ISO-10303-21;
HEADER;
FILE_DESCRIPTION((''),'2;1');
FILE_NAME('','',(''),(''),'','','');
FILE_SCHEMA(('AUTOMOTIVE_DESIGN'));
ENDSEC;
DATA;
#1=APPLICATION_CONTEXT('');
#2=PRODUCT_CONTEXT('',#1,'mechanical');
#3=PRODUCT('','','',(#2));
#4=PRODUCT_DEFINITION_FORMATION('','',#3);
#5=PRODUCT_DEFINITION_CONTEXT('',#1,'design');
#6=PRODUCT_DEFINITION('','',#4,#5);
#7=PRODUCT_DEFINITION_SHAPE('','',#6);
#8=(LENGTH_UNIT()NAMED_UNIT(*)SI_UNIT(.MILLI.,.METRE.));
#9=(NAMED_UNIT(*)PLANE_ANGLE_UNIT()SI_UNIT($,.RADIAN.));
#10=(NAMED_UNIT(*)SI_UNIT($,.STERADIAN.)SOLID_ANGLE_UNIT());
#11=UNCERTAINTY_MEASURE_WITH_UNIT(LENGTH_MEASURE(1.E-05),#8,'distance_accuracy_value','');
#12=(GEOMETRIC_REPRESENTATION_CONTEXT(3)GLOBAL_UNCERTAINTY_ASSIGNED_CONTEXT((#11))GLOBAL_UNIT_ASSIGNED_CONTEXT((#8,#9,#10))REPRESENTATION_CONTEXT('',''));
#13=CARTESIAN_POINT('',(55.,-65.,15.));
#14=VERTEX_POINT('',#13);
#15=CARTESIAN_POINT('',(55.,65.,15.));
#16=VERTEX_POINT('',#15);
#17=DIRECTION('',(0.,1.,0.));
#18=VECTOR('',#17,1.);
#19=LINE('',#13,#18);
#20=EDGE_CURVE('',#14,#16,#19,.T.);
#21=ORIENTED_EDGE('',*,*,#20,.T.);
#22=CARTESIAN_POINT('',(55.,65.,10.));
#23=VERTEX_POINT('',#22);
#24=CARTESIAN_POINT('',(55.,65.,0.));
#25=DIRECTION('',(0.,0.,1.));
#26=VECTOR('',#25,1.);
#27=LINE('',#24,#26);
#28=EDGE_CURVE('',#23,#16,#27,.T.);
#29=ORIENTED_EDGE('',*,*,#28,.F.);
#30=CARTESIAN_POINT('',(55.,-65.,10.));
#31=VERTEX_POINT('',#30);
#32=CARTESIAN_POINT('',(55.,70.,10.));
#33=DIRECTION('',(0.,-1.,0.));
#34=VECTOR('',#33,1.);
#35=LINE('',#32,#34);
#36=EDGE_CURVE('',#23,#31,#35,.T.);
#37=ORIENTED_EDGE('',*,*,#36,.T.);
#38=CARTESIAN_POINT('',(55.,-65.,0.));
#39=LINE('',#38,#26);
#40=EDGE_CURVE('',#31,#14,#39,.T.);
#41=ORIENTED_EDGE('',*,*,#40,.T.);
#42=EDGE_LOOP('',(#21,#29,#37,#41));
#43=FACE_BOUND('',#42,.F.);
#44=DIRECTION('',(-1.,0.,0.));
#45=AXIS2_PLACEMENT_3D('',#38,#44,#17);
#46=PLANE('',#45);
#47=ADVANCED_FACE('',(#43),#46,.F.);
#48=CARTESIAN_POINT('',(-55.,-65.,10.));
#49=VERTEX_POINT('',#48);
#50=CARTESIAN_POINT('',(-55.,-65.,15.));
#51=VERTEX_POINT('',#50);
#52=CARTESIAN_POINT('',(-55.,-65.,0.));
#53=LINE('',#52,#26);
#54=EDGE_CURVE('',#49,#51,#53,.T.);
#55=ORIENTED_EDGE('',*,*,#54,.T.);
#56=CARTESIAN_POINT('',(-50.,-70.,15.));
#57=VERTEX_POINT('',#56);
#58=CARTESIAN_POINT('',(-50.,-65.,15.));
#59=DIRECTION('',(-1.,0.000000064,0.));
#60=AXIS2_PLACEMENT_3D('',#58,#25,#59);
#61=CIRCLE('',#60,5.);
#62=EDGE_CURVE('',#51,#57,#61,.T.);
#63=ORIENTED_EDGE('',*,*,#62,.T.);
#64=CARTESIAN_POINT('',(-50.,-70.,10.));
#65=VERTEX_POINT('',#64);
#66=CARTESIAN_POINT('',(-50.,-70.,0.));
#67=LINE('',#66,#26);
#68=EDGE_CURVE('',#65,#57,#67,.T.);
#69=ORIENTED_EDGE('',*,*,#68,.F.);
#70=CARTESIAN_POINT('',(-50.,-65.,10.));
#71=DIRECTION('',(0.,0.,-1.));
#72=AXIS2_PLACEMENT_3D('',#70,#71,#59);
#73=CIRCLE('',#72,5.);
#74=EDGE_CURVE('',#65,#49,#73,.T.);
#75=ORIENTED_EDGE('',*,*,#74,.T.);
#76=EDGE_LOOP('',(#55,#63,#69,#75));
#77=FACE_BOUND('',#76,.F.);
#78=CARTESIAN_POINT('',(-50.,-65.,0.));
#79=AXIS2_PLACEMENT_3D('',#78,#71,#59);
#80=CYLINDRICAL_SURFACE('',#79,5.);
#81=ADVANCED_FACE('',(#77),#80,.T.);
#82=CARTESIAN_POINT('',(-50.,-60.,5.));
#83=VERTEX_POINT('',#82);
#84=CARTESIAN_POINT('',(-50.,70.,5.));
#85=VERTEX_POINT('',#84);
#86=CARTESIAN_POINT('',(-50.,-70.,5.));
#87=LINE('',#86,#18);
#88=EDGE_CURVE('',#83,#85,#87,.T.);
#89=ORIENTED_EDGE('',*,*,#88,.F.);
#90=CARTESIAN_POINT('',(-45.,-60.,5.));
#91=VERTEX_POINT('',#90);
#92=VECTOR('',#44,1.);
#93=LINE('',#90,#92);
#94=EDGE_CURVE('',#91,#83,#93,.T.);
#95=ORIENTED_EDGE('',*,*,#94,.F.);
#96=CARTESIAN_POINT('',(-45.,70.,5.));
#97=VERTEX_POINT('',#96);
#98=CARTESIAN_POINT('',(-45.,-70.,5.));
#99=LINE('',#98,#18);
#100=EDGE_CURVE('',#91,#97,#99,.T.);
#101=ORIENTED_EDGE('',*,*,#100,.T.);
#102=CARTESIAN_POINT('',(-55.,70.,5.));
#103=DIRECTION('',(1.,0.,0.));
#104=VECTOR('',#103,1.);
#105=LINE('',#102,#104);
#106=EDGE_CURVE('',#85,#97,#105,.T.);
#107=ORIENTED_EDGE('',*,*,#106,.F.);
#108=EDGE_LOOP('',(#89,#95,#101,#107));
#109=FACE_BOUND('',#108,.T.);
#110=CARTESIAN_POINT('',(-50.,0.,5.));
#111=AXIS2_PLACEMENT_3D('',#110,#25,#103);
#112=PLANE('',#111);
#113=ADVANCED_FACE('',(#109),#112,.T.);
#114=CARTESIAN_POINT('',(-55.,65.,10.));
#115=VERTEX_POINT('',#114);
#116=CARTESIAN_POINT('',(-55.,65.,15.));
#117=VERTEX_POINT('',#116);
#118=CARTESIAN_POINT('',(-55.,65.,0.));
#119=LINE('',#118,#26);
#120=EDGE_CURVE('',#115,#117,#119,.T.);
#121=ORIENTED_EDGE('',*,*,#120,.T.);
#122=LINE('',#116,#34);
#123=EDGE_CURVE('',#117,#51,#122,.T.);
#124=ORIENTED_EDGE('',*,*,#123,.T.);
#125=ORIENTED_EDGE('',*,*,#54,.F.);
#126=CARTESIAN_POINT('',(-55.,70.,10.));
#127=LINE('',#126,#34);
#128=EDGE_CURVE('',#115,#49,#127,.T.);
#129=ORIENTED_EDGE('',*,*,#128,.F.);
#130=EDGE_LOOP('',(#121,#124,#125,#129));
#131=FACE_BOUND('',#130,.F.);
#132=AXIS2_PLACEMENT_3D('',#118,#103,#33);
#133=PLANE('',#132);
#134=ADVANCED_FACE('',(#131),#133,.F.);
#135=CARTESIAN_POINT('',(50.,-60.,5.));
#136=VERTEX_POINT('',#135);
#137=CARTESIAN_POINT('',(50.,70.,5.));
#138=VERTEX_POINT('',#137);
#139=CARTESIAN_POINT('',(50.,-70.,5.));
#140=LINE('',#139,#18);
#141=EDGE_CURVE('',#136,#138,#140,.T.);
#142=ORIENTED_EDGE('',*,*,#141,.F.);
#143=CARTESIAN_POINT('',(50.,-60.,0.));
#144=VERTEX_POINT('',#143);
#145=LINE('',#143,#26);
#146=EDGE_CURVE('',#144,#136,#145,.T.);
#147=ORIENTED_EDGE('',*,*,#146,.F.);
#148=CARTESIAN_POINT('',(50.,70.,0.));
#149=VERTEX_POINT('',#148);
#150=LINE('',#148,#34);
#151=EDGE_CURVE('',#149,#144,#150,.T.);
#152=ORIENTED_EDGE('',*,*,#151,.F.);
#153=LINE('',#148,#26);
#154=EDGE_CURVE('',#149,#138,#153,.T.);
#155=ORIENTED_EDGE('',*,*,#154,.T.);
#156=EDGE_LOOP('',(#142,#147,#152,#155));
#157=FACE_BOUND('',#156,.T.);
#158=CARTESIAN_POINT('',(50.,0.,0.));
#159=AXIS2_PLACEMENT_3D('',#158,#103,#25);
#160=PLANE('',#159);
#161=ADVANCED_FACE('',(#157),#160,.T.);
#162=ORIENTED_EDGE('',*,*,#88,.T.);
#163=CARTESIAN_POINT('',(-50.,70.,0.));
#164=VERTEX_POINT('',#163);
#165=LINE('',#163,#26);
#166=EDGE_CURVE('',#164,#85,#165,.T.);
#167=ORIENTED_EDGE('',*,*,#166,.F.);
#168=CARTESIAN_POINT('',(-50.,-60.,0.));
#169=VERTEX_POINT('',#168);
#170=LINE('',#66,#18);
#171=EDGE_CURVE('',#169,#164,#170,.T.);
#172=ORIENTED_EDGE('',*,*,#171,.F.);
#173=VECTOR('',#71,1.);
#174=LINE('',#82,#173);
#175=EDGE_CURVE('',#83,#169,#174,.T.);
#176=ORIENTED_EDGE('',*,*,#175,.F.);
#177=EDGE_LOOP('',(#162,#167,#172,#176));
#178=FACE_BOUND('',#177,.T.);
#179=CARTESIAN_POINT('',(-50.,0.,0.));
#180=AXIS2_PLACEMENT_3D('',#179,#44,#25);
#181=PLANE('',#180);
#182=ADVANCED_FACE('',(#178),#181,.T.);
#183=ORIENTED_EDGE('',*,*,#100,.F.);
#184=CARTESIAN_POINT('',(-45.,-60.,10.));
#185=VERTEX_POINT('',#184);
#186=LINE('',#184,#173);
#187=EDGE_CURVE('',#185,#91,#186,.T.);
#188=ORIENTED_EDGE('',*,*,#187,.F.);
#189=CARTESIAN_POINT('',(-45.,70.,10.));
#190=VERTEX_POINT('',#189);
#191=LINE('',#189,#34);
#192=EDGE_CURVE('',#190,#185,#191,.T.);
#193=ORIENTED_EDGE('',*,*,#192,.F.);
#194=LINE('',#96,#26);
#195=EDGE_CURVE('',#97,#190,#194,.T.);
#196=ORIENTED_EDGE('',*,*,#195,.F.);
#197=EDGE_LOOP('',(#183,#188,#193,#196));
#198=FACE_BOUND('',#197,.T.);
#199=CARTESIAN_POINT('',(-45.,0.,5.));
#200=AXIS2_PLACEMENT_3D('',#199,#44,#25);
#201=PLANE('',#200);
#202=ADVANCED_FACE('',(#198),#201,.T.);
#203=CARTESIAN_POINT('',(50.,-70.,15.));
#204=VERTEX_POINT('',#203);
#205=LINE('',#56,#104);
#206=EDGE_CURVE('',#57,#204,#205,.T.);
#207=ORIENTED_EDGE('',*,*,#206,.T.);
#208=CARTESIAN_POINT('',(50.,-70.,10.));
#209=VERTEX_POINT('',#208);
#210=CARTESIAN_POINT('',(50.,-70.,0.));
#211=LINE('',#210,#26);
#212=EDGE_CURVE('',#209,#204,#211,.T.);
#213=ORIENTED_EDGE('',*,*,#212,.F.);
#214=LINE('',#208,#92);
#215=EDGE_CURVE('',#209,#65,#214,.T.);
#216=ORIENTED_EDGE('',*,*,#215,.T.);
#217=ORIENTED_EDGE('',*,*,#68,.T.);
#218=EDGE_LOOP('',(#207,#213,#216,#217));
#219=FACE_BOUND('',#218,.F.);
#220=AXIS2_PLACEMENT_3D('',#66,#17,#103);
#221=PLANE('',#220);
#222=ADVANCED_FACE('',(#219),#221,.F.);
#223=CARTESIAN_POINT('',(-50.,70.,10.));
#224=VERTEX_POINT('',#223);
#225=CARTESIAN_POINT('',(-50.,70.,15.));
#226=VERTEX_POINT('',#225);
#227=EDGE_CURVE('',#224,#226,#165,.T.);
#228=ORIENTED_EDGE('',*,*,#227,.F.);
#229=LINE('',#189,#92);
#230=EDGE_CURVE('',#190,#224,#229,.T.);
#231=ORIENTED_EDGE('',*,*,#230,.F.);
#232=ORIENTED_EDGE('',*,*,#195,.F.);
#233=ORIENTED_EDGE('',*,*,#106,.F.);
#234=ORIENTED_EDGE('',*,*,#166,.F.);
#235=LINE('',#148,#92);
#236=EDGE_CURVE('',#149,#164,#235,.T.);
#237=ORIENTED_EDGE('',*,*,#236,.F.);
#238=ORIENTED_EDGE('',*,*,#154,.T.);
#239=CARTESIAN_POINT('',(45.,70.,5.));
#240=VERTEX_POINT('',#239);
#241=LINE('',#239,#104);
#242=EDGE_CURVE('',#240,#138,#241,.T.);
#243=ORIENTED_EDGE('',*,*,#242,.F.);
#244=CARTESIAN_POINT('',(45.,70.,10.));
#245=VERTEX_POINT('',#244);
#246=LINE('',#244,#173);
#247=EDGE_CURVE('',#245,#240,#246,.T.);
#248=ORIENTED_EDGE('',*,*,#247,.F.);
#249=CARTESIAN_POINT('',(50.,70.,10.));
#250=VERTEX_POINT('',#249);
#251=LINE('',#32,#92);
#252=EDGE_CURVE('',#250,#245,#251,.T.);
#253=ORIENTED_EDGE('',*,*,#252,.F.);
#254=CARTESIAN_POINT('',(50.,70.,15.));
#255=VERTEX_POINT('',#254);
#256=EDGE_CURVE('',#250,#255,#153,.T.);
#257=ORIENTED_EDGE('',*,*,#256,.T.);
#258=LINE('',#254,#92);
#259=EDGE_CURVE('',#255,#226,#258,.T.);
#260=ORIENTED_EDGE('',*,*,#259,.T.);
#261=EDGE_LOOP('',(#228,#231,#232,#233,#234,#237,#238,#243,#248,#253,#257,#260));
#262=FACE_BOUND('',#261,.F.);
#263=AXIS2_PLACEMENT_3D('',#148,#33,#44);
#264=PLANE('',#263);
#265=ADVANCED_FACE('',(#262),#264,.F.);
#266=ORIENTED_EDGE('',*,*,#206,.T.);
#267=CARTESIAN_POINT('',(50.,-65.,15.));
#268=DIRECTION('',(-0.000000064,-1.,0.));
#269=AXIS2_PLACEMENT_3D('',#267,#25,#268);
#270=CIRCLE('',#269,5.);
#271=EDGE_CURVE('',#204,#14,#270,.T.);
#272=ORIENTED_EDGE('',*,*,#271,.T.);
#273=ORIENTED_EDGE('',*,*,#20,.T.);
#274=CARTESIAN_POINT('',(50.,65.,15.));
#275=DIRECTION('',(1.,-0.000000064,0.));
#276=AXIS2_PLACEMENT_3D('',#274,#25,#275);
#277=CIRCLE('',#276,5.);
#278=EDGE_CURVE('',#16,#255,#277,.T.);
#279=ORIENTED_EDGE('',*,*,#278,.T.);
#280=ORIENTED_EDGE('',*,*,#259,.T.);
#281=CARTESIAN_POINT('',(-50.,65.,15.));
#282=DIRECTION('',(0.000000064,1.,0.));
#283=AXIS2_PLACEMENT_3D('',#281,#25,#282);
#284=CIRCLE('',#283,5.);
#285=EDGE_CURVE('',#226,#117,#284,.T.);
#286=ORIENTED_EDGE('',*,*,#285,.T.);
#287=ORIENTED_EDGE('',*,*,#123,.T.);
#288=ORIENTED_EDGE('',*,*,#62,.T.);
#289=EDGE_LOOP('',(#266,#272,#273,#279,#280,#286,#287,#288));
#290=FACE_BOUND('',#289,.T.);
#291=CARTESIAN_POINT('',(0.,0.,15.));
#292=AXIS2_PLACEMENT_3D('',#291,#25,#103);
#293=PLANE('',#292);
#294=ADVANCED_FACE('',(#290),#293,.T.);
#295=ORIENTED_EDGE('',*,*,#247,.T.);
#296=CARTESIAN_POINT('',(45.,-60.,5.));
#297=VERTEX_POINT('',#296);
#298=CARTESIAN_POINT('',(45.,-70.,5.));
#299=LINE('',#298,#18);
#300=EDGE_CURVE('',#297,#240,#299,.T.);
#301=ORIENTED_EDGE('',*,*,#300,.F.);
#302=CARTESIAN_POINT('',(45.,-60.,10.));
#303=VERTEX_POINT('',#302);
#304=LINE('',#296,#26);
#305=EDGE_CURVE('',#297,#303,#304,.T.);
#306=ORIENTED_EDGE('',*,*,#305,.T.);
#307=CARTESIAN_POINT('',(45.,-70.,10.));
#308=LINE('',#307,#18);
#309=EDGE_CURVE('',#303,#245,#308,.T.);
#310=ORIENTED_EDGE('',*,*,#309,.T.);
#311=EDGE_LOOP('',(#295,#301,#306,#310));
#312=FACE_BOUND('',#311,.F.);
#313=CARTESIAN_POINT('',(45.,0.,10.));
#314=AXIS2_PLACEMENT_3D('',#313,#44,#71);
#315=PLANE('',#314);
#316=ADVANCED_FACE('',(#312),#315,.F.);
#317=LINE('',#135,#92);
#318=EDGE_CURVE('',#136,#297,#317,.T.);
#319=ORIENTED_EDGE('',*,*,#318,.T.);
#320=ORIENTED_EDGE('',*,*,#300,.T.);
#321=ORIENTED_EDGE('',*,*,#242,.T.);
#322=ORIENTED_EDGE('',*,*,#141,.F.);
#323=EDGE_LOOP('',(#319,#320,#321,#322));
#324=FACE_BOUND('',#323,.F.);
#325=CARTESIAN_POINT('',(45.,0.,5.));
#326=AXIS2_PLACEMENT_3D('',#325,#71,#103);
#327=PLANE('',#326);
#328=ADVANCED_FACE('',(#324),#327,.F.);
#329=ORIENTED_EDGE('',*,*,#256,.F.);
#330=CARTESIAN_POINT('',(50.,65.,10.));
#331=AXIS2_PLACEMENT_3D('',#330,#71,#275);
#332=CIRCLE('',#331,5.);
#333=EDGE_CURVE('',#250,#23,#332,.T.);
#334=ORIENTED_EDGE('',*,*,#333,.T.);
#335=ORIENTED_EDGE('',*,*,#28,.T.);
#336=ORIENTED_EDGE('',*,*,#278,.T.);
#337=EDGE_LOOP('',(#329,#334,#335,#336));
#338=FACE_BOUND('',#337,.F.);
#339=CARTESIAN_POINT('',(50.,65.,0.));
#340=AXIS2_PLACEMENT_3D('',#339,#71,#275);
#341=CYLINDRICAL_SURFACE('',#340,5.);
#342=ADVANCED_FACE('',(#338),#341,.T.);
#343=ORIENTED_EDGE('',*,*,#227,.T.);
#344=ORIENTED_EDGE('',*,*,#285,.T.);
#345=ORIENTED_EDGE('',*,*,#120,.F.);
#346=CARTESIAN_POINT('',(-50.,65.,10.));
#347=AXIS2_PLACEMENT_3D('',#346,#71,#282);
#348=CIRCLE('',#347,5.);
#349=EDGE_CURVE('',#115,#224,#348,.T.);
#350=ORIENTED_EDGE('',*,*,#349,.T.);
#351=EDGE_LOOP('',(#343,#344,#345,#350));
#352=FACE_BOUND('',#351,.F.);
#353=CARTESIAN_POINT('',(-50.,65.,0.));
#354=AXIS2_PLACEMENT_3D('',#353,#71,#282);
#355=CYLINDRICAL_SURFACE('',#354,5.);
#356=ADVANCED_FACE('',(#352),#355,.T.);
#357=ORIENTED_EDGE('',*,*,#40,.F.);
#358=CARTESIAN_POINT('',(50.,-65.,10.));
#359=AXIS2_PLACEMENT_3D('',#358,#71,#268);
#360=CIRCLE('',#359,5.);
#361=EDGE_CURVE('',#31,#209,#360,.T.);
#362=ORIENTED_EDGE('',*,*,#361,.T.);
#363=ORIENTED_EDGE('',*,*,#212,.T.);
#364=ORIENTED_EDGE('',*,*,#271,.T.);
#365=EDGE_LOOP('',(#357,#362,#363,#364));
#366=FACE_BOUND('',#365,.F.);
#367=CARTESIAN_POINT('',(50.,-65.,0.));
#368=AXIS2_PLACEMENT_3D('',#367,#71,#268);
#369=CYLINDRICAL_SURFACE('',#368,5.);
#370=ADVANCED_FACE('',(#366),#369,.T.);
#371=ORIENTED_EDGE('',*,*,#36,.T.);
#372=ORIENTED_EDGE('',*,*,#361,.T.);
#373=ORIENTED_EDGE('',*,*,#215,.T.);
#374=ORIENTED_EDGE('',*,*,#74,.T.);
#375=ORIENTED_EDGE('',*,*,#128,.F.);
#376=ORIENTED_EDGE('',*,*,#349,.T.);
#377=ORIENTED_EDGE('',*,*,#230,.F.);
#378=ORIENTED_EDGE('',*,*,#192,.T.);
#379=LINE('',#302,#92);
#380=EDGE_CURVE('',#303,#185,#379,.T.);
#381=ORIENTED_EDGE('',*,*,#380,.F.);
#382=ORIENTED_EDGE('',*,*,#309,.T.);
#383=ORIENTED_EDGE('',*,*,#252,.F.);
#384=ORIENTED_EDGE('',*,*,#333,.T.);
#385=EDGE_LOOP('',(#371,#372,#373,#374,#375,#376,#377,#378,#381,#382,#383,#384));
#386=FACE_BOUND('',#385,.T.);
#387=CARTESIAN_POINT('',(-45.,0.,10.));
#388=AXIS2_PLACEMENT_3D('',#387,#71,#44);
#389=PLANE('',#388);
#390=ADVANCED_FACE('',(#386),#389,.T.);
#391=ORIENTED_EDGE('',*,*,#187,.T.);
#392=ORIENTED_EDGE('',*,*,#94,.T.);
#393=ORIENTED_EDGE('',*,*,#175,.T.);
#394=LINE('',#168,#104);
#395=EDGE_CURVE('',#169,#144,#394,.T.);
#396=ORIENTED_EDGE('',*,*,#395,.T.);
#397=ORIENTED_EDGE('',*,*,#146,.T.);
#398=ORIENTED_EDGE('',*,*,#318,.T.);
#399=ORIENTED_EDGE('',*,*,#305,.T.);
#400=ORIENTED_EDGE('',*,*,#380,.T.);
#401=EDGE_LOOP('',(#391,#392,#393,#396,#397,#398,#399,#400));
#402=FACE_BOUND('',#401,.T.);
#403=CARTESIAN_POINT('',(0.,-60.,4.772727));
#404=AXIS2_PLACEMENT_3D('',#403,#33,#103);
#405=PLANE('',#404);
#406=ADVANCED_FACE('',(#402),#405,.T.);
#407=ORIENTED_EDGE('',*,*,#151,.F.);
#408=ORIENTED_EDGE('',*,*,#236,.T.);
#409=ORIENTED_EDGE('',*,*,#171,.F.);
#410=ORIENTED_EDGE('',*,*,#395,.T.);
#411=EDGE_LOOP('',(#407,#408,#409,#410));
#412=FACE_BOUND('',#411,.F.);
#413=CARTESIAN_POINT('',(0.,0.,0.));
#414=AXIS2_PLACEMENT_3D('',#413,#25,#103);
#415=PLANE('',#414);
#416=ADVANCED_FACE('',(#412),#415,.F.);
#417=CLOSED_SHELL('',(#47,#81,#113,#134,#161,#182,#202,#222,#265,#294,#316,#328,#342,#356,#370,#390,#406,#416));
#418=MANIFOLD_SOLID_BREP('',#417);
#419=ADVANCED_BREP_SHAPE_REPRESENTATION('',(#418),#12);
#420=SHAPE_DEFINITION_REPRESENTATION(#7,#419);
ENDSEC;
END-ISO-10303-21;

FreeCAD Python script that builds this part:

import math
import FreeCAD as App
import Part
import Sketcher
Q = App.Units.Quantity


def add_polygon(sketch, points):
    """Adds a closed chain of lines whose ends are joined by coincident constraints."""
    first, n = sketch.GeometryCount, len(points)
    for a, b in zip(points, points[1:] + points[:1]):
        sketch.addGeometry(Part.LineSegment(App.Vector(*a, 0), App.Vector(*b, 0)), False)
    for i in range(n):
        sketch.addConstraint(Sketcher.Constraint("Coincident", first + i, 2, first + (i + 1) % n, 1))

doc = App.newDocument("Part")
body = doc.addObject("PartDesign::Body", "Body")

sketch1 = body.newObject("Sketcher::SketchObject", "Sketch")
sketch1.AttachmentSupport = (doc.getObject("XY_Plane"), [""])
sketch1.MapMode = "FlatFace"
sketch1.addGeometry([
    Part.ArcOfCircle(Part.Circle(App.Vector(50, 65, 0), App.Vector(0, 0, 1), 5), math.radians(-0.000004), math.radians(90.000004)),
    Part.LineSegment(App.Vector(50, 70, 0), App.Vector(-50, 70, 0)),
    Part.ArcOfCircle(Part.Circle(App.Vector(-50, 65, 0), App.Vector(0, 0, 1), 5), math.radians(89.999996), math.radians(180.000004)),
    Part.LineSegment(App.Vector(-55, 65, 0), App.Vector(-55, -65, 0)),
    Part.ArcOfCircle(Part.Circle(App.Vector(-50, -65, 0), App.Vector(0, 0, 1), 5), math.radians(179.999996), math.radians(270.000004)),
    Part.LineSegment(App.Vector(-50, -70, 0), App.Vector(50, -70, 0)),
    Part.ArcOfCircle(Part.Circle(App.Vector(50, -65, 0), App.Vector(0, 0, 1), 5), math.radians(-90.000004), math.radians(0.000004)),
    Part.LineSegment(App.Vector(55, -65, 0), App.Vector(55, 65, 0)),
], False)
sketch1.addConstraint([
    Sketcher.Constraint("Tangent", 0, 2, 1, 1),
    Sketcher.Constraint("Tangent", 1, 2, 2, 1),
    Sketcher.Constraint("Tangent", 2, 2, 3, 1),
    Sketcher.Constraint("Tangent", 3, 2, 4, 1),
    Sketcher.Constraint("Tangent", 4, 2, 5, 1),
    Sketcher.Constraint("Tangent", 5, 2, 6, 1),
    Sketcher.Constraint("Tangent", 6, 2, 7, 1),
    Sketcher.Constraint("Tangent", 7, 2, 0, 1),
    Sketcher.Constraint("Horizontal", 1),
    Sketcher.Constraint("Vertical", 3),
    Sketcher.Constraint("Horizontal", 5),
    Sketcher.Constraint("Vertical", 7),
    Sketcher.Constraint("Equal", 0, 2),
    Sketcher.Constraint("Equal", 2, 4),
    Sketcher.Constraint("Equal", 4, 6),
    Sketcher.Constraint("Symmetric", 0, 3, 4, 3, -1, 1),
    Sketcher.Constraint("Radius", 0, Q("5 mm")),
    Sketcher.Constraint("DistanceX", 1, 2, 1, 1, Q("100 mm")),
    Sketcher.Constraint("DistanceY", 3, 2, 3, 1, Q("130 mm")),
])
pad1 = body.newObject("PartDesign::Pad", "Pad")
pad1.Profile = sketch1
pad1.Length = 15

sketch2 = body.newObject("Sketcher::SketchObject", "Sketch001")
sketch2.AttachmentSupport = (doc.getObject("XZ_Plane"), [""])
sketch2.MapMode = "FlatFace"
add_polygon(sketch2, [(-45, 5), (-45, 10), (-55, 10), (-55, 0), (-50, 0), (-50, 5)])
add_polygon(sketch2, [(50, 5), (50, 0), (55, 0), (55, 10), (45, 10), (45, 5)])
sketch2.addConstraint([
    Sketcher.Constraint("Vertical", 0),
    Sketcher.Constraint("Horizontal", 1),
    Sketcher.Constraint("Vertical", 2),
    Sketcher.Constraint("Horizontal", 3),
    Sketcher.Constraint("Vertical", 4),
    Sketcher.Constraint("Horizontal", 5),
    Sketcher.Constraint("Vertical", 6),
    Sketcher.Constraint("Horizontal", 7),
    Sketcher.Constraint("Vertical", 8),
    Sketcher.Constraint("Horizontal", 9),
    Sketcher.Constraint("Vertical", 10),
    Sketcher.Constraint("Horizontal", 11),
    Sketcher.Constraint("Symmetric", 3, 2, 6, 2, -1, 1),
    Sketcher.Constraint("Symmetric", 2, 2, 7, 2, -2),
    Sketcher.Constraint("Symmetric", 0, 2, 9, 2, -2),
    Sketcher.Constraint("Horizontal", 5, 2, 10, 2),
    Sketcher.Constraint("Equal", 3, 5),
    Sketcher.Constraint("Equal", 11, 0),
    Sketcher.Constraint("Equal", 9, 2),
    Sketcher.Constraint("DistanceX", 1, 2, 1, 1, Q("10 mm")),
    Sketcher.Constraint("DistanceX", 0, 2, -1, 1, Q("45 mm")),
])
pocket1 = body.newObject("PartDesign::Pocket", "Pocket")
pocket1.Profile = sketch2
pocket1.Length = 140
pocket1.Midplane = True

sketch3 = body.newObject("Sketcher::SketchObject", "Sketch002")
sketch3.AttachmentSupport = (doc.getObject("XZ_Plane"), [""])
sketch3.MapMode = "FlatFace"
sketch3.AttachmentOffset = App.Placement(App.Vector(0, 0, 70), App.Rotation())
add_polygon(sketch3, [(-50, 0), (50, 0), (50, 5), (45, 5), (45, 10), (-45, 10), (-45, 5), (-50, 5)])
sketch3.addConstraint([
    Sketcher.Constraint("Horizontal", 0),
    Sketcher.Constraint("Vertical", 1),
    Sketcher.Constraint("Horizontal", 2),
    Sketcher.Constraint("Vertical", 3),
    Sketcher.Constraint("Horizontal", 4),
    Sketcher.Constraint("Vertical", 5),
    Sketcher.Constraint("Horizontal", 6),
    Sketcher.Constraint("Vertical", 7),
    Sketcher.Constraint("Symmetric", 0, 2, 7, 2, -1, 1),
    Sketcher.Constraint("Symmetric", 2, 2, 5, 2, -2),
    Sketcher.Constraint("Equal", 6, 1),
    Sketcher.Constraint("Equal", 1, 3),
    Sketcher.Constraint("DistanceX", 0, 1, 0, 2, Q("100 mm")),
    Sketcher.Constraint("DistanceX", 2, 2, 2, 1, Q("5 mm")),
])
pocket2 = body.newObject("PartDesign::Pocket", "Pocket001")
pocket2.Profile = sketch3
pocket2.Length = 10

doc.recompute()
